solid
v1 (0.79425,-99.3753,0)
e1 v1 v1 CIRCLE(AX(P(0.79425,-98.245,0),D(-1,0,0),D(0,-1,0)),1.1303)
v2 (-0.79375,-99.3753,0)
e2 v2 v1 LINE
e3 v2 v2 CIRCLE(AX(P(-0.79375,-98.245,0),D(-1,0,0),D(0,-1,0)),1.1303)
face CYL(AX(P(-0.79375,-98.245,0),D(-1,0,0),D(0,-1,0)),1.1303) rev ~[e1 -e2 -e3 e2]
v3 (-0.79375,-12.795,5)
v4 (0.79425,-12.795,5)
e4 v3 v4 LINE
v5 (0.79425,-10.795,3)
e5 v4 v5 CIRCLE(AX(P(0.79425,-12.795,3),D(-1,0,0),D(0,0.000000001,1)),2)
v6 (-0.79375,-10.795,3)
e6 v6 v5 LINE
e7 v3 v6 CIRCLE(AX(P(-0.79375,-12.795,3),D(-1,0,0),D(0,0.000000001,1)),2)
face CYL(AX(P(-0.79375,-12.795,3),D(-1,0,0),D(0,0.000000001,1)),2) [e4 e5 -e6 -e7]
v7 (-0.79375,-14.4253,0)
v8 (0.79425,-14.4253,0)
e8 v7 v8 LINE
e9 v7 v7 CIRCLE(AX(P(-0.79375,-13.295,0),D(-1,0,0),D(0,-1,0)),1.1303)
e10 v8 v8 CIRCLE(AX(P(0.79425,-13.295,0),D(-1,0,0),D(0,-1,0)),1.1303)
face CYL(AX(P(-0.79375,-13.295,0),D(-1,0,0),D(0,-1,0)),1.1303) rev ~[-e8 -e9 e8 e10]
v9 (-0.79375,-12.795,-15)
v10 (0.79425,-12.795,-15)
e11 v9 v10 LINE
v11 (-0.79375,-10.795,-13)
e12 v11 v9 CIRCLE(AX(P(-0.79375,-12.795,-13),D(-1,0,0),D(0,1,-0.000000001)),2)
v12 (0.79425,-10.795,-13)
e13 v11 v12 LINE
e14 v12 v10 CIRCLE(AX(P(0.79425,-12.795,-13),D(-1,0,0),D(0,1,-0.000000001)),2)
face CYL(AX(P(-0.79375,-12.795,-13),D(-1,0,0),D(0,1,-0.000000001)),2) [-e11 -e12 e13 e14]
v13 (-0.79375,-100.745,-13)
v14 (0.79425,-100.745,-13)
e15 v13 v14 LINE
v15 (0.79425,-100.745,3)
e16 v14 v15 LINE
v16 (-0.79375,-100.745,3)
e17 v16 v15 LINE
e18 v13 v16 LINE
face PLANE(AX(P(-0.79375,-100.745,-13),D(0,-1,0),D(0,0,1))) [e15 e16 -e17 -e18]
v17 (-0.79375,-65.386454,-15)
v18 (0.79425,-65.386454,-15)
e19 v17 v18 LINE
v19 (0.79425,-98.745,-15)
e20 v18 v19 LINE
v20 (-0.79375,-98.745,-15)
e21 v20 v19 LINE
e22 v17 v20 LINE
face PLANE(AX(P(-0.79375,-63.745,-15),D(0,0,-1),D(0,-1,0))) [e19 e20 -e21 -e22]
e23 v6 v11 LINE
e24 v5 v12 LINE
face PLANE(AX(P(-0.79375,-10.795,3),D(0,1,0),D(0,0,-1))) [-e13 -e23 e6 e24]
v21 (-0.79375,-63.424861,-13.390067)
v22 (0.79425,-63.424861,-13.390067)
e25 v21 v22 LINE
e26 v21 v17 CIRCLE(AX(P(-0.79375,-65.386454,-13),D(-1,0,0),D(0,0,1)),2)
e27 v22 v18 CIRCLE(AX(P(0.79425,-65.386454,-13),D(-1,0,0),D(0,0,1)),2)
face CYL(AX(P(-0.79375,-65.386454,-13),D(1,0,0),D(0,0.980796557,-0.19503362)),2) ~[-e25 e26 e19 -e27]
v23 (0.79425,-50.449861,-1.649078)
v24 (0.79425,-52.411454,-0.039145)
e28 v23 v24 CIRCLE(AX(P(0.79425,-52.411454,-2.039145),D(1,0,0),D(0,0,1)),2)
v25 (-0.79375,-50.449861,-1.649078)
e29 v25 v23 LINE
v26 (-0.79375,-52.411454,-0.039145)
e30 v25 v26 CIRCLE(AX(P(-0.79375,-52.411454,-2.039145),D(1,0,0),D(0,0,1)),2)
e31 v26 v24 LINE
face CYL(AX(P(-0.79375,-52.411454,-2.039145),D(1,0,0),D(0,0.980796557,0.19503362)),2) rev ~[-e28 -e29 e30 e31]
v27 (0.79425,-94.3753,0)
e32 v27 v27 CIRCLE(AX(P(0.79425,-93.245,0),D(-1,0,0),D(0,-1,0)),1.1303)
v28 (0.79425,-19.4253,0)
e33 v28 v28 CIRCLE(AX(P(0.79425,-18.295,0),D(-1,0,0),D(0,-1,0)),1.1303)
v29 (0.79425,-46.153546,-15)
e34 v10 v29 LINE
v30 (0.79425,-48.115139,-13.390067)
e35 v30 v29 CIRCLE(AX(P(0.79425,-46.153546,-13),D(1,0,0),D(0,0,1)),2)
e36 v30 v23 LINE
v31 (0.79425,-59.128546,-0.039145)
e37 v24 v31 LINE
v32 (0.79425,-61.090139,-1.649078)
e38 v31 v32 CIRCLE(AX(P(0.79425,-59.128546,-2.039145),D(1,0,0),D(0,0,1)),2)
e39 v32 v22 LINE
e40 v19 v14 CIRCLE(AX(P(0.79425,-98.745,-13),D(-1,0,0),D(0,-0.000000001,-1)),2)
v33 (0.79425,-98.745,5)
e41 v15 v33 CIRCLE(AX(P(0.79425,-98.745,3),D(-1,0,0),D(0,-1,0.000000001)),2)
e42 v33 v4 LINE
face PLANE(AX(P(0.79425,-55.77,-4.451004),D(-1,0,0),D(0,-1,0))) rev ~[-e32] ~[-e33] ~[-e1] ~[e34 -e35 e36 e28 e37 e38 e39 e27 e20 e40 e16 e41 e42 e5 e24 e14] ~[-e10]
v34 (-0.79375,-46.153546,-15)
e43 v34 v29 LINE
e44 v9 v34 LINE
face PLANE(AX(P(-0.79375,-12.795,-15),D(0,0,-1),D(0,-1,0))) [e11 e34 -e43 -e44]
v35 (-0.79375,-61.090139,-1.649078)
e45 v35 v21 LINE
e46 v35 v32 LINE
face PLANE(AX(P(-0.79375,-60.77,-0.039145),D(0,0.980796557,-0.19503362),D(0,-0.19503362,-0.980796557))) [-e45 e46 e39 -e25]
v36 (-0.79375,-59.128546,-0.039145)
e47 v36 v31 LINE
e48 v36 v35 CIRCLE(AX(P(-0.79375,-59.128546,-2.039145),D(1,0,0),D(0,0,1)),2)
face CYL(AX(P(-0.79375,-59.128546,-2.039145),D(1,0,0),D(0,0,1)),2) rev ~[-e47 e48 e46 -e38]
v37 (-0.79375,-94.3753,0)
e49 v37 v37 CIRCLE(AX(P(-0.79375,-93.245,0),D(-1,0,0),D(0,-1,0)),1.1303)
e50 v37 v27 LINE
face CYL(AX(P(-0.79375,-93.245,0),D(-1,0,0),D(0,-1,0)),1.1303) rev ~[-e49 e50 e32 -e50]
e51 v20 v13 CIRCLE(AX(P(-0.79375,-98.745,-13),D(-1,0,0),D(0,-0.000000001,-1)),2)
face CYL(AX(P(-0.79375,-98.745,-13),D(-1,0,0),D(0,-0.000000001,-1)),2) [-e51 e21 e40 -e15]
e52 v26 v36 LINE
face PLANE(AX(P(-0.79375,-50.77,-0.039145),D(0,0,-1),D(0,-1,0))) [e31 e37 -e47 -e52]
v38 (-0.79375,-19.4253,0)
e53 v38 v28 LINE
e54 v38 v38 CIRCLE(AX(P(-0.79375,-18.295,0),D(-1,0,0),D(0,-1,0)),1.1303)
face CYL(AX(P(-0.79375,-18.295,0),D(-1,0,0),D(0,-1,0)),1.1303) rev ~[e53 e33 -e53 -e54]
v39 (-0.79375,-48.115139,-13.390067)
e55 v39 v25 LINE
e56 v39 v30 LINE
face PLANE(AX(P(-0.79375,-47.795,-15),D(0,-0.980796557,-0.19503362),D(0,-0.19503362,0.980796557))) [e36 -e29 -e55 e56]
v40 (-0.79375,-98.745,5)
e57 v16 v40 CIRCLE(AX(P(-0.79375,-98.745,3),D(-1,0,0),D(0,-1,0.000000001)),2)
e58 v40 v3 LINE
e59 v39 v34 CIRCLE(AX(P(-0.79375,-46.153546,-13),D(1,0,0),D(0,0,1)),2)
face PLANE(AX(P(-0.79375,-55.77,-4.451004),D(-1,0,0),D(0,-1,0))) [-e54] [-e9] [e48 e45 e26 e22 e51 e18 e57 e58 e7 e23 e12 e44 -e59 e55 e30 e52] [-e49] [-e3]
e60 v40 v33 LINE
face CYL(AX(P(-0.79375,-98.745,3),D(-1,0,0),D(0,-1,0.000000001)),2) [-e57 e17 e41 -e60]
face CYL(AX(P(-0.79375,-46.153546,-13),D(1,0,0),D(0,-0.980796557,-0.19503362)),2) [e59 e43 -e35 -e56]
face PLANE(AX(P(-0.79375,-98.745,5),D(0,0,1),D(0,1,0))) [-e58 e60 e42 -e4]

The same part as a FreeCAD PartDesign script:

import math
import FreeCAD as App
import Part
import Sketcher

V = App.Vector
Q = App.Units.Quantity


def edges_at(feature, points):
    """Names of the edges that pass closest to the given points."""
    edges = feature.Shape.Edges
    near = lambda p: min(range(len(edges)), key=lambda i: edges[i].distToShape(Part.Vertex(*p))[0])
    return sorted({f"Edge{near(p) + 1}" for p in points})

doc = App.newDocument("Part")
body = doc.addObject("PartDesign::Body", "Body")

# Sketch on YZ plane
sketch1 = body.newObject("Sketcher::SketchObject", "Sketch")
sketch1.AttachmentSupport = (doc.getObject("YZ_Plane"), [""])
sketch1.MapMode = "FlatFace"
sketch1.AttachmentOffset = App.Placement(V(0, 0, -0.79375), App.Rotation())
sketch1.addGeometry([
    Part.ArcOfCircle(Part.Circle(V(-12.795, 3, 0), V(0, 0, 1), 2), math.radians(0), math.radians(90)),  # 0
    Part.LineSegment(V(-10.795, 3, 0), V(-10.795, -13, 0)),  # 1
    Part.ArcOfCircle(Part.Circle(V(-12.795, -13, 0), V(0, 0, 1), 2), math.radians(-90), math.radians(0)),  # 2
    Part.LineSegment(V(-12.795, -15, 0), V(-47.795, -15, 0)),  # 3
    Part.LineSegment(V(-47.795, -15, 0), V(-50.77, -0.039145, 0)),  # 4
    Part.LineSegment(V(-50.77, -0.039145, 0), V(-60.77, -0.039145, 0)),  # 5
    Part.LineSegment(V(-60.77, -0.039145, 0), V(-63.745, -15, 0)),  # 6
    Part.LineSegment(V(-63.745, -15, 0), V(-98.745, -15, 0)),  # 7
    Part.ArcOfCircle(Part.Circle(V(-98.745, -13, 0), V(0, 0, 1), 2), math.radians(-180), math.radians(-90)),  # 8
    Part.LineSegment(V(-100.745, -13, 0), V(-100.745, 3, 0)),  # 9
    Part.ArcOfCircle(Part.Circle(V(-98.745, 3, 0), V(0, 0, 1), 2), math.radians(90), math.radians(180)),  # 10
    Part.LineSegment(V(-98.745, 5, 0), V(-12.795, 5, 0)),  # 11
    Part.Circle(V(-13.295, 0, 0), V(0, 0, 1), 1.1303),  # 12
    Part.Circle(V(-18.295, 0, 0), V(0, 0, 1), 1.1303),  # 13
    Part.Circle(V(-93.245, 0, 0), V(0, 0, 1), 1.1303),  # 14
    Part.Circle(V(-98.245, 0, 0), V(0, 0, 1), 1.1303),  # 15
], False)
sketch1.addConstraint([
    Sketcher.Constraint("Tangent", 0, 1, 1, 1),
    Sketcher.Constraint("Tangent", 1, 2, 2, 2),
    Sketcher.Constraint("Tangent", 2, 1, 3, 1),
    Sketcher.Constraint("Coincident", 3, 2, 4, 1),
    Sketcher.Constraint("Coincident", 4, 2, 5, 1),
    Sketcher.Constraint("Coincident", 5, 2, 6, 1),
    Sketcher.Constraint("Coincident", 6, 2, 7, 1),
    Sketcher.Constraint("Tangent", 7, 2, 8, 2),
    Sketcher.Constraint("Tangent", 8, 1, 9, 1),
    Sketcher.Constraint("Tangent", 9, 2, 10, 2),
    Sketcher.Constraint("Tangent", 10, 1, 11, 1),
    Sketcher.Constraint("Tangent", 11, 2, 0, 2),
    Sketcher.Constraint("Vertical", 1),
    Sketcher.Constraint("Horizontal", 3),
    Sketcher.Constraint("Horizontal", 5),
    Sketcher.Constraint("Horizontal", 7),
    Sketcher.Constraint("Vertical", 9),
    Sketcher.Constraint("Horizontal", 11),
    Sketcher.Constraint("Equal", 0, 2),
    Sketcher.Constraint("Equal", 2, 8),
    Sketcher.Constraint("Equal", 8, 10),
    Sketcher.Constraint("Equal", 12, 13),
    Sketcher.Constraint("Equal", 13, 14),
    Sketcher.Constraint("Equal", 14, 15),
    Sketcher.Constraint("PointOnObject", 12, 3, -1),
    Sketcher.Constraint("PointOnObject", 13, 3, -1),
    Sketcher.Constraint("PointOnObject", 14, 3, -1),
    Sketcher.Constraint("PointOnObject", 15, 3, -1),
    Sketcher.Constraint("Horizontal", 2, 3, 8, 3),
    Sketcher.Constraint("Equal", 3, 7),
    Sketcher.Constraint("Equal", 4, 6),
    Sketcher.Constraint("Radius", 0, Q("2 mm")),
    Sketcher.Constraint("DistanceX", 3, 2, 3, 1, Q("35 mm")),
    Sketcher.Constraint("DistanceX", 5, 2, 5, 1, Q("10 mm")),
    Sketcher.Constraint("DistanceY", 1, 2, 1, 1, Q("16 mm")),
    Sketcher.Constraint("DistanceY", -1, 1, 0, 3, Q("3 mm")),
    Sketcher.Constraint("DistanceX", 13, 3, 12, 3, Q("5 mm")),
    Sketcher.Constraint("DistanceX", 15, 3, 14, 3, Q("5 mm")),
    Sketcher.Constraint("Diameter", 12, Q("2.2606 mm")),
    Sketcher.Constraint("DistanceX", 11, 1, 11, 2, Q("85.95 mm")),
    Sketcher.Constraint("DistanceX", 12, 3, 0, 3, Q("0.5 mm")),
    Sketcher.Constraint("DistanceX", 10, 3, 14, 3, Q("5.5 mm")),
    Sketcher.Constraint("DistanceX", 4, 2, -1, 1, Q("50.77 mm")),
    Sketcher.Constraint("Distance", 4, Q("15.25378 mm")),
])
pad1 = body.newObject("PartDesign::Pad", "Pad")
pad1.Profile = sketch1
pad1.Length = 1.588
doc.recompute()

fillet = body.newObject("PartDesign::Fillet", "Fillet")
fillet.Base = (pad1, edges_at(pad1, [(0, -50.77, -0.039)]))
fillet.Radius = 2
doc.recompute()

fillet2 = body.newObject("PartDesign::Fillet", "Fillet001")
fillet2.Base = (fillet, edges_at(fillet, [(0, -47.795, -15)]))
fillet2.Radius = 2
doc.recompute()

fillet3 = body.newObject("PartDesign::Fillet", "Fillet002")
fillet3.Base = (fillet2, edges_at(fillet2, [(0, -60.77, -0.039)]))
fillet3.Radius = 2
doc.recompute()

fillet4 = body.newObject("PartDesign::Fillet", "Fillet003")
fillet4.Base = (fillet3, edges_at(fillet3, [(0, -63.745, -15)]))
fillet4.Radius = 2

doc.recompute()
